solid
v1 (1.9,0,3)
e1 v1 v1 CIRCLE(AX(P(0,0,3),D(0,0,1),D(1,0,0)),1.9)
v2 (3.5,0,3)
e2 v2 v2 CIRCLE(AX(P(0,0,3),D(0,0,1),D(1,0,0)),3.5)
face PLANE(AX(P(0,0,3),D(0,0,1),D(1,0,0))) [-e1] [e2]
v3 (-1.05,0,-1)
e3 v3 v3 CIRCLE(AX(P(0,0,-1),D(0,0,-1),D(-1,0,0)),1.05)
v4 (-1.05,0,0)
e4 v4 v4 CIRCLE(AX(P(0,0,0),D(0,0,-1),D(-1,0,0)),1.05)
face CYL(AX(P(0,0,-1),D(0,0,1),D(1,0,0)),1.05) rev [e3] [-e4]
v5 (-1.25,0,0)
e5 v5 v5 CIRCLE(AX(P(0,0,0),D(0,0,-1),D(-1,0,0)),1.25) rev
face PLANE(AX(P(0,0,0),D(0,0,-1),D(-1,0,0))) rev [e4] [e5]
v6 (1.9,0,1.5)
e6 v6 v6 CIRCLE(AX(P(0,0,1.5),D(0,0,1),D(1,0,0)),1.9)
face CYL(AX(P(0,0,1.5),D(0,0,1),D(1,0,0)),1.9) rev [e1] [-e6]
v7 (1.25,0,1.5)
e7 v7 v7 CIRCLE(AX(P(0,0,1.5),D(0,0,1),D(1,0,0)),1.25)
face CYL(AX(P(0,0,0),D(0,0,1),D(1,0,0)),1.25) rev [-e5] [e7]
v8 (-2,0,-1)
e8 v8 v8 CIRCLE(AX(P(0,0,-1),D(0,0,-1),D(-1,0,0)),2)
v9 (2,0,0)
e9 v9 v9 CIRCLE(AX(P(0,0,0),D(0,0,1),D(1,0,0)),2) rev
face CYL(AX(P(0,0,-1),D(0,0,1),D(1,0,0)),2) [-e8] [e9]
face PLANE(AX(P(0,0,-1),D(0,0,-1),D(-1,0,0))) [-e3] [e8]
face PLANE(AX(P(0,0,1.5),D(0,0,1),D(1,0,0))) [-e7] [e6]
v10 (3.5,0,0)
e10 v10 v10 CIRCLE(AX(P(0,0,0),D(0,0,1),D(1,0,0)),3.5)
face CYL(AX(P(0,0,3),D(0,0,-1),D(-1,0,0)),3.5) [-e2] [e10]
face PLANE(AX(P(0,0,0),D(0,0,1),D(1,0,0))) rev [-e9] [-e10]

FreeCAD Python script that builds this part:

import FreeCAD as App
import Part
import Sketcher
Q = App.Units.Quantity

doc = App.newDocument("Part")
body = doc.addObject("PartDesign::Body", "Body")

# Sketch on XY plane
sketch1 = doc.addObject("Sketcher::SketchObject", "Sketch")
body.addObject(sketch1)
sketch1.AttachmentSupport = (doc.XY_Plane, [""])
sketch1.MapMode = "FlatFace"
sketch1.addGeometry(Part.Circle(App.Vector(0, 0, 0), App.Vector(0, 0, 1), 3.5), False)
sketch1.addConstraint([
    Sketcher.Constraint("Coincident", 0, 3, -1, 1),
    Sketcher.Constraint("Diameter", 0, Q("7 mm")),
])
pad1 = doc.addObject("PartDesign::Pad", "Pad")
body.addObject(pad1)
pad1.Profile = sketch1
pad1.Length = 3

# Sketch on XY plane
sketch2 = doc.addObject("Sketcher::SketchObject", "Sketch001")
body.addObject(sketch2)
sketch2.AttachmentSupport = (doc.XY_Plane, [""])
sketch2.MapMode = "FlatFace"
sketch2.AttachmentOffset = App.Placement(App.Vector(0, 0, 3), App.Rotation())
sketch2.addGeometry(Part.Circle(App.Vector(0, 0, 0), App.Vector(0, 0, 1), 1.9), False)
sketch2.addConstraint([
    Sketcher.Constraint("Coincident", 0, 3, -1, 1),
    Sketcher.Constraint("Diameter", 0, Q("3.8 mm")),
])
pocket1 = doc.addObject("PartDesign::Pocket", "Pocket")
body.addObject(pocket1)
pocket1.Profile = sketch2
pocket1.Length = 1.5

# Sketch on XY plane
sketch3 = doc.addObject("Sketcher::SketchObject", "Sketch002")
body.addObject(sketch3)
sketch3.AttachmentSupport = (doc.XY_Plane, [""])
sketch3.MapMode = "FlatFace"
sketch3.AttachmentOffset = App.Placement(App.Vector(0, 0, 1.5), App.Rotation())
sketch3.addGeometry(Part.Circle(App.Vector(0, 0, 0), App.Vector(0, 0, 1), 1.2), False)
sketch3.addConstraint([
    Sketcher.Constraint("Coincident", 0, 3, -1, 1),
    Sketcher.Constraint("Diameter", 0, Q("2.5 mm")),
])
pocket2 = doc.addObject("PartDesign::Pocket", "Pocket001")
body.addObject(pocket2)
pocket2.Profile = sketch3
pocket2.Type = "ThroughAll"
body2 = doc.addObject("PartDesign::Body", "Body001")

# Sketch on XY plane
sketch4 = doc.addObject("Sketcher::SketchObject", "Sketch003")
body2.addObject(sketch4)
sketch4.AttachmentSupport = (doc.getObject("XY_Plane001"), [""])
sketch4.MapMode = "FlatFace"
sketch4.addGeometry([
    Part.Circle(App.Vector(0, 0, 0), App.Vector(0, 0, 1), 1.2),
    Part.Circle(App.Vector(0, 0, 0), App.Vector(0, 0, 1), 1.1),
], False)
sketch4.addConstraint([
    Sketcher.Constraint("Coincident", 0, 3, -1, 1),
    Sketcher.Constraint("Coincident", 1, 3, -1, 1),
    Sketcher.Constraint("Diameter", 0, Q("2.5 mm")),
    Sketcher.Constraint("Diameter", 1, Q("2.1 mm")),
])
pad2 = doc.addObject("PartDesign::Pad", "Pad001")
body2.addObject(pad2)
pad2.Profile = sketch4
pad2.Length = 1
pad2.Reversed = True
body.AllowCompound = True
doc.recompute()

boolean = doc.addObject("PartDesign::Boolean", "Boolean")
body.addObject(boolean)
boolean.Type = "Fuse"
boolean.addObjects([body2])

# Sketch on XY plane
sketch5 = doc.addObject("Sketcher::SketchObject", "Sketch004")
body.addObject(sketch5)
sketch5.AttachmentSupport = (doc.XY_Plane, [""])
sketch5.MapMode = "FlatFace"
sketch5.addGeometry([
    Part.Circle(App.Vector(0, 0, 0), App.Vector(0, 0, 1), 2),
    Part.Circle(App.Vector(0, 0, 0), App.Vector(0, 0, 1), 1.2),
], False)
sketch5.addConstraint([
    Sketcher.Constraint("Coincident", 0, 3, -1, 1),
    Sketcher.Constraint("Coincident", 1, 3, -1, 1),
    Sketcher.Constraint("Diameter", 0, Q("4 mm")),
    Sketcher.Constraint("Diameter", 1, Q("2.5 mm")),
])
pad3 = doc.addObject("PartDesign::Pad", "Pad002")
body.addObject(pad3)
pad3.Profile = sketch5
pad3.Length = 1
pad3.Reversed = True

doc.recompute()
